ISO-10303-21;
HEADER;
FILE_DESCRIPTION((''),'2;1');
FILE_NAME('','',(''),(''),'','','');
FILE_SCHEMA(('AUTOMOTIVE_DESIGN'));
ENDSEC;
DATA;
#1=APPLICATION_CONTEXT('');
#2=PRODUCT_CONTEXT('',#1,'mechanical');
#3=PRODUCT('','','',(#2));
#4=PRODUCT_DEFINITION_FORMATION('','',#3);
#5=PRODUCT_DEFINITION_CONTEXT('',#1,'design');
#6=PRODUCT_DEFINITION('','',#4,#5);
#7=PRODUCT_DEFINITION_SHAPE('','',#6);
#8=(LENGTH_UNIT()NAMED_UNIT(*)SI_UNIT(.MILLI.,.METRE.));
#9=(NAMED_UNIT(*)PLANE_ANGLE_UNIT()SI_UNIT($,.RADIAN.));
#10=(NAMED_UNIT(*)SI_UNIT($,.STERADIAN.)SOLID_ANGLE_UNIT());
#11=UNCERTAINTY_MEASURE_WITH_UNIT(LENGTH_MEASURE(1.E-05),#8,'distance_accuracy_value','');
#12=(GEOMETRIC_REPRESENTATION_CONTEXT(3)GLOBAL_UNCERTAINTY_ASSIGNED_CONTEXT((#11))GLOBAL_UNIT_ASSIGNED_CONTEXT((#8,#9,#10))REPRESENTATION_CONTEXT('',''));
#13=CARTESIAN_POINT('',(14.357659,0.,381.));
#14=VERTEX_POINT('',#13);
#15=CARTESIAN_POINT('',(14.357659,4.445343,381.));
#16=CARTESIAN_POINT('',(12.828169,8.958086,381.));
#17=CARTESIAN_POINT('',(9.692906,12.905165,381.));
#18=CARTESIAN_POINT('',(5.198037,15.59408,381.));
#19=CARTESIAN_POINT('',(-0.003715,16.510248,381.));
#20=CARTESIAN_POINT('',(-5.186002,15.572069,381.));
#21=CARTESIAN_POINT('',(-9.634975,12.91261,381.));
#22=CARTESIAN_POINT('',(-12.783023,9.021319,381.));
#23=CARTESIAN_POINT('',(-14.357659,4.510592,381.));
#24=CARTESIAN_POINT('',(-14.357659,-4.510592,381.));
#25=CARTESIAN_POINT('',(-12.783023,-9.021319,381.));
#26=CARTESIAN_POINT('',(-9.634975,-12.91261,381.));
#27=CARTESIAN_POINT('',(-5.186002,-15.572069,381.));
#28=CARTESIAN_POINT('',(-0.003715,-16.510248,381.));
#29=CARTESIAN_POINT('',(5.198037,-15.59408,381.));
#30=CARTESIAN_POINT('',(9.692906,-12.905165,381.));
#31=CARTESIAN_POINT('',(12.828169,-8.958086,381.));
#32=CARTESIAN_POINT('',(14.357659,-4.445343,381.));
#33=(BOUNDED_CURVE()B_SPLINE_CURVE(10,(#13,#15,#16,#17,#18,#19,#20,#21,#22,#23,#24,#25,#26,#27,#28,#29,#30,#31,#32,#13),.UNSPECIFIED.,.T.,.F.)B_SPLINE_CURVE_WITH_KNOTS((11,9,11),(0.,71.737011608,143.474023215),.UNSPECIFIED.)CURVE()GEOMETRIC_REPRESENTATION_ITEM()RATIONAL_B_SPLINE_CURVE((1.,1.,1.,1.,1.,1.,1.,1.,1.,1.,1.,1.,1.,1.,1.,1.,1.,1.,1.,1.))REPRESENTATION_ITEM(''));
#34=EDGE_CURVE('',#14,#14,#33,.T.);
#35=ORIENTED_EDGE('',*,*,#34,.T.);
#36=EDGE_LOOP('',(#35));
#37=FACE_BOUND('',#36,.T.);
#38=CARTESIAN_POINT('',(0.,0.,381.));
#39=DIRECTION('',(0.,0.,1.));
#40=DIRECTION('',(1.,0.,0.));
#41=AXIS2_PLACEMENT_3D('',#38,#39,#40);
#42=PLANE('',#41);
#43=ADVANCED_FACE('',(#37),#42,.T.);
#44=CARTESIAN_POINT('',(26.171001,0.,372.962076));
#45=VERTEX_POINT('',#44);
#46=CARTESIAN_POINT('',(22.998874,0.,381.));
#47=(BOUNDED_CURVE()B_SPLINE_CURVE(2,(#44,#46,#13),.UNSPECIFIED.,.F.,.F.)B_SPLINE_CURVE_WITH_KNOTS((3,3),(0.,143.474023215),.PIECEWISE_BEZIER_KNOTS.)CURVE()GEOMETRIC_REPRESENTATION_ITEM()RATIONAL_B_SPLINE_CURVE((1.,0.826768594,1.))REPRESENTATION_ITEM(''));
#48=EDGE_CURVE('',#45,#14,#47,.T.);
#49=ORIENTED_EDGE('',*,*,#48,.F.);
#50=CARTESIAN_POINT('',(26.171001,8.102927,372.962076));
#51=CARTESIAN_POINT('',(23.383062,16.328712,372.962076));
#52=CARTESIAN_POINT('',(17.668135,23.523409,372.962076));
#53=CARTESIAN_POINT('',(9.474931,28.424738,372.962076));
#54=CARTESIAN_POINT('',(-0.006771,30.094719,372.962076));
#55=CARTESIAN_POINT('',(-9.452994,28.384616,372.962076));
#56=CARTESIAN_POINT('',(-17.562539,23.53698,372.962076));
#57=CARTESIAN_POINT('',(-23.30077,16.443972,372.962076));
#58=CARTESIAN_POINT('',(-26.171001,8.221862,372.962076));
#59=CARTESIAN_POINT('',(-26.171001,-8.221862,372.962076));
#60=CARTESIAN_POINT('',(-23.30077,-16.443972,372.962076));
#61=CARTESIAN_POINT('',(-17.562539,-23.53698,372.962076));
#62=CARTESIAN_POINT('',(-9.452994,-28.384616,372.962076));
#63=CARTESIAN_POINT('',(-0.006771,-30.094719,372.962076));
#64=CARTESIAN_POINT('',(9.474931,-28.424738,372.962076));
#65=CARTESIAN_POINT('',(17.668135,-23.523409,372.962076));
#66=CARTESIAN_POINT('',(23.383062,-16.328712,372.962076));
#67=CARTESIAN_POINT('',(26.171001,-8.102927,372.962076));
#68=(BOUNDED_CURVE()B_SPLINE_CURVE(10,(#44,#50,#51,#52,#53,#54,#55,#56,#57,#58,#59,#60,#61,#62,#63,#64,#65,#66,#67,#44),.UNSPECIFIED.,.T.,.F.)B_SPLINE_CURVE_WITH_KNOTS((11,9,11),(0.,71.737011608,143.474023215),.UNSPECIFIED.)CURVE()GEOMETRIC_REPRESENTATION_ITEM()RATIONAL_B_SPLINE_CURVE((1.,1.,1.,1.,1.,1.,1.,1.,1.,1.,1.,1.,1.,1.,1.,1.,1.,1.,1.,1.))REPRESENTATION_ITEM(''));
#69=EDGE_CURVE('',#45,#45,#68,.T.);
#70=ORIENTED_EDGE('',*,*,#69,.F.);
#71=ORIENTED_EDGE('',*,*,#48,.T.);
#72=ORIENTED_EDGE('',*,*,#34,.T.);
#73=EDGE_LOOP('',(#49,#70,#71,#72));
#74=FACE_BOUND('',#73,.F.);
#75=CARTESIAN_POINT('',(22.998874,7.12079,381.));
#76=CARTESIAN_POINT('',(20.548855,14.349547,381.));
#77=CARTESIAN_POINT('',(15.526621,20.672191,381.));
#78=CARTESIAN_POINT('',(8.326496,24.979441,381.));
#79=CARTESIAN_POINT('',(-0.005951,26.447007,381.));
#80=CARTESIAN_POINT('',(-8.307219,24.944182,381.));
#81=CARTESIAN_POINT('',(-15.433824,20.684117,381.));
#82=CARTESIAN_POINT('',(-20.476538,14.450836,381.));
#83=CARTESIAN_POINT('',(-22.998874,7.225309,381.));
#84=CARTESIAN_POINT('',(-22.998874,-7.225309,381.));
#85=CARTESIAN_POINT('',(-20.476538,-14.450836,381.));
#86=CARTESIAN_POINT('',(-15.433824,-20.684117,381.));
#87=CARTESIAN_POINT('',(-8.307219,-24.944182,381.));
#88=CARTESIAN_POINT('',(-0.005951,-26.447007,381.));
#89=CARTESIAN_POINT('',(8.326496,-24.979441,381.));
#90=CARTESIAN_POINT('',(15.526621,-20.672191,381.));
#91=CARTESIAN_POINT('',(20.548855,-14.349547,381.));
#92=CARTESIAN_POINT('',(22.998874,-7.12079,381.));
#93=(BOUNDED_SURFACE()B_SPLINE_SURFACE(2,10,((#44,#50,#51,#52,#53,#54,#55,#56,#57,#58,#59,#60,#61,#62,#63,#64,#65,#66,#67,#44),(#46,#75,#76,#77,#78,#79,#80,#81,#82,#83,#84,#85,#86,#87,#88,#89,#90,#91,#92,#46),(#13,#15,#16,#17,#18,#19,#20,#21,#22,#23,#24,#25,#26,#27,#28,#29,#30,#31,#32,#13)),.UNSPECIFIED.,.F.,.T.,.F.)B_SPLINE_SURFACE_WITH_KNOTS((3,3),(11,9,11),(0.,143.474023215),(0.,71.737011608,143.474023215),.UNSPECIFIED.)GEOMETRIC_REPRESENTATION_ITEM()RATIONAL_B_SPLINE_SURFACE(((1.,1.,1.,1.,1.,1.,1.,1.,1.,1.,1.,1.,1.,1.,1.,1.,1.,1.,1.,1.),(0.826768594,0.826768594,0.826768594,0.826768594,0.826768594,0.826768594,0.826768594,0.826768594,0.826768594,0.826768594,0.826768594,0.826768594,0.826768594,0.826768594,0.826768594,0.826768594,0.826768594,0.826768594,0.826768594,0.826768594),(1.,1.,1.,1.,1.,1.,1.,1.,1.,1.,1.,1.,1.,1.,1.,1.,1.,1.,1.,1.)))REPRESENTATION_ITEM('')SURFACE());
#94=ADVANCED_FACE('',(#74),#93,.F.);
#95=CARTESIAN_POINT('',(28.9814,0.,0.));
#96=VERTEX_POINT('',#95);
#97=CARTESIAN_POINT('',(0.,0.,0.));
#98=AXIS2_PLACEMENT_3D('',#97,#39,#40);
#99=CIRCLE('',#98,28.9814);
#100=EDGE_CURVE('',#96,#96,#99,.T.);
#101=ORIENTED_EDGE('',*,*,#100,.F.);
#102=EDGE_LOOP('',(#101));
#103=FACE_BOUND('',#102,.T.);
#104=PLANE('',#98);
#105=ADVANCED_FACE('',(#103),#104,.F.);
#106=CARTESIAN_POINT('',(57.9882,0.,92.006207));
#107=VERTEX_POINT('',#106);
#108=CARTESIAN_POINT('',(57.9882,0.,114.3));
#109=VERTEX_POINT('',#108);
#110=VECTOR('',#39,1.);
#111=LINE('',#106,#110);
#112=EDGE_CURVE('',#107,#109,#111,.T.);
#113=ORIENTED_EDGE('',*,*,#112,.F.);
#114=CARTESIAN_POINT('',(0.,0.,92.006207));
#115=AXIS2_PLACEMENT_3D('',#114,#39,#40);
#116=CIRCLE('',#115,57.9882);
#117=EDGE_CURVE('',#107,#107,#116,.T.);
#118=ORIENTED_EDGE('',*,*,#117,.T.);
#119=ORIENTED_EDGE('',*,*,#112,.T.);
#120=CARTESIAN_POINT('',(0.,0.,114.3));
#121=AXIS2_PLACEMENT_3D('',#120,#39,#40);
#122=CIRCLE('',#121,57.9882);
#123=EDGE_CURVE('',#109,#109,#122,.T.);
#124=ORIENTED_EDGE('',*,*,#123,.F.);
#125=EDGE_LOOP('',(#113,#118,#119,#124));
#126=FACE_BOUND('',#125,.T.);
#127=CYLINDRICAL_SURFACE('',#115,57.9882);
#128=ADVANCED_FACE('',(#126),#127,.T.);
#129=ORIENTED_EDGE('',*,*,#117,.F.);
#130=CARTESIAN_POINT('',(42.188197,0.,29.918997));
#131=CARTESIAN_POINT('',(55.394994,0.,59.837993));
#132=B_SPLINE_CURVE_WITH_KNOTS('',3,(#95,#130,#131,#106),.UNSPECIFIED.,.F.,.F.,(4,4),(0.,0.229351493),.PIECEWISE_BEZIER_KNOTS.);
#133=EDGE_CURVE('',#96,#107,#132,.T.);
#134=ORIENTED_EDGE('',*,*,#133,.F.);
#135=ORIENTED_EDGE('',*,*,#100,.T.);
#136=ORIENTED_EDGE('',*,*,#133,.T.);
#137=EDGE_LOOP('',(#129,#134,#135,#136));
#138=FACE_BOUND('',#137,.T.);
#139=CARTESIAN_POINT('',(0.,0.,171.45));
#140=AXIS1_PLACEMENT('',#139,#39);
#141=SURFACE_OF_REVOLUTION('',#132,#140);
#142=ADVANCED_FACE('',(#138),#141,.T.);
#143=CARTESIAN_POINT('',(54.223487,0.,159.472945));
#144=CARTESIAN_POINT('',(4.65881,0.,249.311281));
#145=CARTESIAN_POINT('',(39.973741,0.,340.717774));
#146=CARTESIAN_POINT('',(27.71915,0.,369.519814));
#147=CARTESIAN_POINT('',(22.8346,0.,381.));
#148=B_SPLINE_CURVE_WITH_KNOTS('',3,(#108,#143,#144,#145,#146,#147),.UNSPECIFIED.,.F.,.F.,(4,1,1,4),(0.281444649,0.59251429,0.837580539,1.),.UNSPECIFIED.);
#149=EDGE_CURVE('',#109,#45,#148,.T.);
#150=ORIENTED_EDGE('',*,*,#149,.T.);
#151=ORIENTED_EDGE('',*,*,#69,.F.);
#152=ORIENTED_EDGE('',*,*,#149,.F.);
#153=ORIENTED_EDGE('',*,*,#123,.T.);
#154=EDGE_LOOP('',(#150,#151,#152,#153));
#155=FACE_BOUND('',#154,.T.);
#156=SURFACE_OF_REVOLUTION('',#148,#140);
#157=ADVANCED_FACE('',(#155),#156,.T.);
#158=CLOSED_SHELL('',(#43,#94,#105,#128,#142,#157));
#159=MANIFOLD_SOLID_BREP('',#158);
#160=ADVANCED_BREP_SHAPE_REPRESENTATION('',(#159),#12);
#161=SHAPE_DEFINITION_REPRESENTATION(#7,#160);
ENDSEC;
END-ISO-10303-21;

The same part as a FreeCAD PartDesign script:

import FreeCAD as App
import Part
import Sketcher

V = App.Vector
Q = App.Units.Quantity


def edges_at(feature, points):
    """Names of the edges that pass closest to the given points."""
    edges = feature.Shape.Edges
    near = lambda p: min(range(len(edges)), key=lambda i: edges[i].distToShape(Part.Vertex(*p))[0])
    return sorted({f"Edge{near(p) + 1}" for p in points})

doc = App.newDocument("Part")
body = doc.addObject("PartDesign::Body", "Body")

sketch1 = body.newObject("Sketcher::SketchObject", "Sketch")
sketch1.AttachmentSupport = (doc.getObject("XZ_Plane"), [""])
sketch1.MapMode = "FlatFace"
sketch1.addGeometry(Part.LineSegment(V(0, 0, 0), V(28.9814, 0, 0)), False)
sketch1.addGeometry(Part.BSplineCurve([V(28.9814, 0, 0), V(42.188197, 29.918997, 0), V(55.394994, 59.837993, 0), V(57.9882, 92.006207, 0)], [4, 4], [0, 0.229351493], False, 3, [1, 1, 1, 1], False), False)
sketch1.addGeometry(Part.LineSegment(V(57.9882, 92.006207, 0), V(57.9882, 114.3, 0)), False)
sketch1.addGeometry(Part.BSplineCurve([V(57.9882, 114.3, 0), V(54.223487, 159.472945, 0), V(4.65881, 249.311281, 0), V(39.973741, 340.717774, 0), V(27.71915, 369.519814, 0), V(22.8346, 381, 0)], [4, 1, 1, 4], [0.281444649, 0.59251429, 0.837580539, 1], False, 3, [1, 1, 1, 1, 1, 1], False), False)
sketch1.addGeometry(Part.LineSegment(V(22.8346, 381, 0), V(0, 381, 0)), False)
sketch1.addGeometry(Part.LineSegment(V(0, 381, 0), V(0, 0, 0)), False)
sketch1.addConstraint(Sketcher.Constraint("Block", 1))
sketch1.addConstraint(Sketcher.Constraint("Block", 3))
sketch1.addConstraint(Sketcher.Constraint("Coincident", 0, 2, 1, 1))
sketch1.addConstraint(Sketcher.Constraint("Coincident", 1, 2, 2, 1))
sketch1.addConstraint(Sketcher.Constraint("Coincident", 2, 2, 3, 1))
sketch1.addConstraint(Sketcher.Constraint("Coincident", 3, 2, 4, 1))
sketch1.addConstraint(Sketcher.Constraint("Coincident", 4, 2, 5, 1))
sketch1.addConstraint(Sketcher.Constraint("Coincident", 5, 2, 0, 1))
sketch1.addConstraint(Sketcher.Constraint("Horizontal", 0))
sketch1.addConstraint(Sketcher.Constraint("Horizontal", 4))
sketch1.addConstraint(Sketcher.Constraint("Vertical", 5))
sketch1.addConstraint(Sketcher.Constraint("PointOnObject", 4, 2, -2))
revolution = body.newObject("PartDesign::Revolution", "Revolution")
revolution.Profile = sketch1
revolution.ReferenceAxis = (sketch1, ["V_Axis"])
revolution.Angle = 360
doc.recompute()

fillet = body.newObject("PartDesign::Fillet", "Fillet")
fillet.Base = (revolution, edges_at(revolution, [(-22.835, 0, 381)]))
fillet.Radius = Q("0.5 in")

doc.recompute()
